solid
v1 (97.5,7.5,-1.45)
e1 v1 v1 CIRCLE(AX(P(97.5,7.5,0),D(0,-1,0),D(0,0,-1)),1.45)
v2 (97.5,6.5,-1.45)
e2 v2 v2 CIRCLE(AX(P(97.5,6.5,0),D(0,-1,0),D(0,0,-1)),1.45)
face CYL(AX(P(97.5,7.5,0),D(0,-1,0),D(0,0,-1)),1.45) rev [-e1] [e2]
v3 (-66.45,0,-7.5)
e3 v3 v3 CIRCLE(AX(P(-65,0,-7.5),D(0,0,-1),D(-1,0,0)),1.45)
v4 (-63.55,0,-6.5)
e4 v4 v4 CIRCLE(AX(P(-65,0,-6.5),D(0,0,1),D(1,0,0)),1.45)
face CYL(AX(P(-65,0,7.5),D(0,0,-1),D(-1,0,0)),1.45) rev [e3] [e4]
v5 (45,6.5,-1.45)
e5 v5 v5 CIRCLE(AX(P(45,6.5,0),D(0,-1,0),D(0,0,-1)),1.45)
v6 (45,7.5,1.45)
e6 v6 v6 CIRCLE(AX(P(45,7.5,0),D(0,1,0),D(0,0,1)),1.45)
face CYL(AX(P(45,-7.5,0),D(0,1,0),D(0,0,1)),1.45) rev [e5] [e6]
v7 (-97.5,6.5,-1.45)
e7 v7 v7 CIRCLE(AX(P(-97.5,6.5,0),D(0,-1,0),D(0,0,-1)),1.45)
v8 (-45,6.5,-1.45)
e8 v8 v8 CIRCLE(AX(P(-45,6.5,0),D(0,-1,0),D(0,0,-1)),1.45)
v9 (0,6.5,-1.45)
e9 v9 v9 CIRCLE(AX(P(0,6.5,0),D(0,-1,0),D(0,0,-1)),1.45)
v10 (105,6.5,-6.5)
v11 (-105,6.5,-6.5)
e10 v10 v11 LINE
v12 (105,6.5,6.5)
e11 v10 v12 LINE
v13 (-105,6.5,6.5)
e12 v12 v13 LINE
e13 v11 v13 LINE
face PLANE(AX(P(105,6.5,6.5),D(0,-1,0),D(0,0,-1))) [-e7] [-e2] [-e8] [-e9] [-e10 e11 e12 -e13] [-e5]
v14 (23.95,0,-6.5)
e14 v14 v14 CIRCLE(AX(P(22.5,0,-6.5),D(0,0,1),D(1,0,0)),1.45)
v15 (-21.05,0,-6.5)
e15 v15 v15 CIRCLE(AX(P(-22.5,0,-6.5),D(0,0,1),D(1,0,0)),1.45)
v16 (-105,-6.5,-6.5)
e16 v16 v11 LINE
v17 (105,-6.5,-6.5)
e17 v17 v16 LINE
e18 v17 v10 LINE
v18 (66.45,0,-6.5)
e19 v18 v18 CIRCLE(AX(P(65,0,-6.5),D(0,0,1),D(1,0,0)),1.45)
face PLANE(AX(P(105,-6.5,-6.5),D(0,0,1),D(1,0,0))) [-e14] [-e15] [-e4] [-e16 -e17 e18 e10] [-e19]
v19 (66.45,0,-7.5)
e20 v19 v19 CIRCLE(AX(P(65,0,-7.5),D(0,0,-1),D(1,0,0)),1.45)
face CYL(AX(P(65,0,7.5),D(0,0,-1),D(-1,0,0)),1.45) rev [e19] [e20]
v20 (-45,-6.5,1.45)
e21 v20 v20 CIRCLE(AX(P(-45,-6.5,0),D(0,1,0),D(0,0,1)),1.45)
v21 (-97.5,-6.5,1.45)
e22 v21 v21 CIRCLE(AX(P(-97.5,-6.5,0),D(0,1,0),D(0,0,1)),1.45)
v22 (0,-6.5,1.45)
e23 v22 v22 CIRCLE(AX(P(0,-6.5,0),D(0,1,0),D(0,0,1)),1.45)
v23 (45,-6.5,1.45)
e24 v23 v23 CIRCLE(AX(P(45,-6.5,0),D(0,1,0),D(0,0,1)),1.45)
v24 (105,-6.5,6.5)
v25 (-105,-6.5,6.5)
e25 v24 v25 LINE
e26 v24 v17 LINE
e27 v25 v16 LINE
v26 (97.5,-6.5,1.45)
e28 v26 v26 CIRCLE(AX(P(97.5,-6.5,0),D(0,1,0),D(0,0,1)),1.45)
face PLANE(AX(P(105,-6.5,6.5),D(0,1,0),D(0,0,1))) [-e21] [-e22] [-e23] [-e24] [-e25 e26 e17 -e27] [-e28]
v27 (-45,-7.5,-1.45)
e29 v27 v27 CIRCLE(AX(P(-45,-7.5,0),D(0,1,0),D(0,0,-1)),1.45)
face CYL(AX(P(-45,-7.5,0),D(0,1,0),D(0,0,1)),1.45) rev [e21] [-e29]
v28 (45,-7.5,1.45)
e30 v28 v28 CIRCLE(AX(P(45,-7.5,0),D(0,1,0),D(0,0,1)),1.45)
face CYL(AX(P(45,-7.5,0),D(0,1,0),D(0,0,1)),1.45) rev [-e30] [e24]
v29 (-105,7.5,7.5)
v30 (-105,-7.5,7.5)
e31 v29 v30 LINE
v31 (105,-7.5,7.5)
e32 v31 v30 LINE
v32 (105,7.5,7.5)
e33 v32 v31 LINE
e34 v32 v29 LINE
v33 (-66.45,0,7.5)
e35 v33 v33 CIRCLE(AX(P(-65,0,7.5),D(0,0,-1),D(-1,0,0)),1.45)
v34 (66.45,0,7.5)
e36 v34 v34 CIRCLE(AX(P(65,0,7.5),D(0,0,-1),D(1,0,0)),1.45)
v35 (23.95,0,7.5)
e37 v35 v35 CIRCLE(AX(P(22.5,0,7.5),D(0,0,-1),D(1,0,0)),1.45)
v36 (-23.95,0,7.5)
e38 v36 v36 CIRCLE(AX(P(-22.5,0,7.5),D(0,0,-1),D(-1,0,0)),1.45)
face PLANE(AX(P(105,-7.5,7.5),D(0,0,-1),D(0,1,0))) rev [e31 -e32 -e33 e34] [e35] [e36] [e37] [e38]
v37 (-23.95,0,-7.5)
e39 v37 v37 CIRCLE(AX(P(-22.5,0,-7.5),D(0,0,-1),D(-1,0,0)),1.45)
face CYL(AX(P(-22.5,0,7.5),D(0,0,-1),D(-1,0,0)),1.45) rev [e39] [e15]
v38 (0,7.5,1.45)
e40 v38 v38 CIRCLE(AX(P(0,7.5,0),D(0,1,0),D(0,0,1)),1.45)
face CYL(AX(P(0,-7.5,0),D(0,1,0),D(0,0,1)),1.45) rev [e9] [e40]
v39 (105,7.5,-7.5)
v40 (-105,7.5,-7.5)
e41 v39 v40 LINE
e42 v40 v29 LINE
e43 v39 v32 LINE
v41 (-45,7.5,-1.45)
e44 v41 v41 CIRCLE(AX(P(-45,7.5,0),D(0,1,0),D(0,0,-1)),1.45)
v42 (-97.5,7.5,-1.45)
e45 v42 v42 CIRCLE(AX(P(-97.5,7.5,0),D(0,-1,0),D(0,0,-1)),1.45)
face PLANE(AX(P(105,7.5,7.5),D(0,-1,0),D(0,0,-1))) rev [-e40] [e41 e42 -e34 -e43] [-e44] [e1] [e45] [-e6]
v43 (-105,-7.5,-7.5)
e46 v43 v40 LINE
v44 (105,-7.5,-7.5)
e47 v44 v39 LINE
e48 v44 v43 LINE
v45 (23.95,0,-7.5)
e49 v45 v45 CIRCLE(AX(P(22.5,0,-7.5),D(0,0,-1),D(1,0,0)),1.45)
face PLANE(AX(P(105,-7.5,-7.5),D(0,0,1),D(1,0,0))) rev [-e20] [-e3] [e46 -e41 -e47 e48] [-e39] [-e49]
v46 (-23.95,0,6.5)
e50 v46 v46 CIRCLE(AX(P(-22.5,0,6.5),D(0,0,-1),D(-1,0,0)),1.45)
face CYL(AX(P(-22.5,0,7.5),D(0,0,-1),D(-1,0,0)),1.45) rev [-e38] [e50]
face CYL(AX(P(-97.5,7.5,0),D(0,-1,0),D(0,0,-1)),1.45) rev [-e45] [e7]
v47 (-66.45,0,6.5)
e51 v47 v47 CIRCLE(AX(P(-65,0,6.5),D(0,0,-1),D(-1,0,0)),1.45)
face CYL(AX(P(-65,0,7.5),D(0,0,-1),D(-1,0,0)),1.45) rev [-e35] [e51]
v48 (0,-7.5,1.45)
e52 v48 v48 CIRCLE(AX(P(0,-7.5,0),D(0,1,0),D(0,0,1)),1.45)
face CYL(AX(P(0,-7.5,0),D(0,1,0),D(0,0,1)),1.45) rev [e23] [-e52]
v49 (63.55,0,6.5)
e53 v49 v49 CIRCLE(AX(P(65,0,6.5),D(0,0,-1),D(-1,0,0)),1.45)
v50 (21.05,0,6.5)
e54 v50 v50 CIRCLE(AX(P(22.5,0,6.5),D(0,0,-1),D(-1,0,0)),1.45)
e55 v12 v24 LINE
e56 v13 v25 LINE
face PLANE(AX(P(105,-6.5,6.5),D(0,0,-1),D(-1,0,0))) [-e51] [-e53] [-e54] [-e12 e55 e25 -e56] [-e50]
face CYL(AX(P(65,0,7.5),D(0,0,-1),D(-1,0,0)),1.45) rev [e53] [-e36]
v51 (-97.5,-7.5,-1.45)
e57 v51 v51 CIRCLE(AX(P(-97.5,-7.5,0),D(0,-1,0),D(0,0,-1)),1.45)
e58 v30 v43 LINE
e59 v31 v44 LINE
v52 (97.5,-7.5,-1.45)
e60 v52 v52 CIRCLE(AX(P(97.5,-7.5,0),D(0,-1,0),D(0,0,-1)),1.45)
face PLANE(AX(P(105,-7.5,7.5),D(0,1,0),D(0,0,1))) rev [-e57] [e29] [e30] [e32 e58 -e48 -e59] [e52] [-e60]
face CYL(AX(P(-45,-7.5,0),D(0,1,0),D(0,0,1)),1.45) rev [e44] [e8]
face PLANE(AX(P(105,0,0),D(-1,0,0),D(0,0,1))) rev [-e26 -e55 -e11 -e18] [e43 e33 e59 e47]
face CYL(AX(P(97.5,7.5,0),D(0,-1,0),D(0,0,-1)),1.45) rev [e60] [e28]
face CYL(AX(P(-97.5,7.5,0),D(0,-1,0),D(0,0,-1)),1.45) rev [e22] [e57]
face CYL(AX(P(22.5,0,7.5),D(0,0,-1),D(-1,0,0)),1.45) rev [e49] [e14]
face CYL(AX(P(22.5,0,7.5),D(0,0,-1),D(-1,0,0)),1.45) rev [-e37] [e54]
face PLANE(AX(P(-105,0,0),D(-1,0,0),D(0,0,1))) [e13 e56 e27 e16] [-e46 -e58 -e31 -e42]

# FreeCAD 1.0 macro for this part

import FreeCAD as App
import Part
import Sketcher
from FreeCAD import Vector

doc = App.newDocument("Part")
params = doc.addObject("Spreadsheet::Sheet", "Params")
for row, (alias, value) in enumerate([
    ("sketch1_width", "15 mm"),
    ("sketch1_width2", "13 mm"),
    ("pad1_length", "210 mm"),
    ("sketch2_diameter", "2.9 mm"),
    ("sketch3_diameter", "2.9 mm"),
    ("sketch4_diameter", "2.9 mm"),
], start=1):
    params.set(f"A{row}", alias)
    params.set(f"B{row}", "=" + value)
    params.setAlias(f"B{row}", alias)

body = doc.addObject("PartDesign::Body", "Body")

# Sketch on YZ plane
sketch1 = doc.addObject("Sketcher::SketchObject", "Sketch")
body.addObject(sketch1)
sketch1.AttachmentSupport = (doc.YZ_Plane, [""])
sketch1.MapMode = "FlatFace"
sketch1.AttachmentOffset = App.Placement(Vector(0, 0, -105), App.Rotation())
sketch1.addGeometry(Part.LineSegment(Vector(8, 8, 0), Vector(-8, 8, 0)), False)
sketch1.addGeometry(Part.LineSegment(Vector(-8, 8, 0), Vector(-8, -8, 0)), False)
sketch1.addGeometry(Part.LineSegment(Vector(-8, -8, 0), Vector(8, -8, 0)), False)
sketch1.addGeometry(Part.LineSegment(Vector(8, -8, 0), Vector(8, 8, 0)), False)
sketch1.addGeometry(Part.LineSegment(Vector(-6, -6, 0), Vector(-6, 6, 0)), False)
sketch1.addGeometry(Part.LineSegment(Vector(-6, 6, 0), Vector(6, 6, 0)), False)
sketch1.addGeometry(Part.LineSegment(Vector(6, 6, 0), Vector(6, -6, 0)), False)
sketch1.addGeometry(Part.LineSegment(Vector(6, -6, 0), Vector(-6, -6, 0)), False)
sketch1.addConstraint(Sketcher.Constraint("Coincident", 0, 2, 1, 1))
sketch1.addConstraint(Sketcher.Constraint("Coincident", 1, 2, 2, 1))
sketch1.addConstraint(Sketcher.Constraint("Coincident", 2, 2, 3, 1))
sketch1.addConstraint(Sketcher.Constraint("Coincident", 3, 2, 0, 1))
sketch1.addConstraint(Sketcher.Constraint("Coincident", 4, 2, 5, 1))
sketch1.addConstraint(Sketcher.Constraint("Coincident", 5, 2, 6, 1))
sketch1.addConstraint(Sketcher.Constraint("Coincident", 6, 2, 7, 1))
sketch1.addConstraint(Sketcher.Constraint("Coincident", 7, 2, 4, 1))
sketch1.addConstraint(Sketcher.Constraint("Horizontal", 0))
sketch1.addConstraint(Sketcher.Constraint("Vertical", 1))
sketch1.addConstraint(Sketcher.Constraint("Horizontal", 2))
sketch1.addConstraint(Sketcher.Constraint("Vertical", 3))
sketch1.addConstraint(Sketcher.Constraint("Vertical", 4))
sketch1.addConstraint(Sketcher.Constraint("Horizontal", 5))
sketch1.addConstraint(Sketcher.Constraint("Vertical", 6))
sketch1.addConstraint(Sketcher.Constraint("Horizontal", 7))
sketch1.addConstraint(Sketcher.Constraint("Symmetric", 0, 2, 2, 2, -1, 1))
sketch1.addConstraint(Sketcher.Constraint("Symmetric", 4, 2, 6, 2, -1, 1))
sketch1.addConstraint(Sketcher.Constraint("Equal", 2, 1))
sketch1.addConstraint(Sketcher.Constraint("Equal", 7, 4))
sketch1.addConstraint(Sketcher.Constraint("DistanceX", 0, 2, 0, 1, 15.0))
sketch1.addConstraint(Sketcher.Constraint("DistanceX", 5, 1, 5, 2, 13.0))
sketch1.setExpression("Constraints[20]", "Params.sketch1_width")
sketch1.setExpression("Constraints[21]", "Params.sketch1_width2")
pad1 = doc.addObject("PartDesign::Pad", "Pad")
body.addObject(pad1)
pad1.Profile = sketch1
pad1.setExpression("Length", "Params.pad1_length")

# Sketch on XY plane
sketch2 = doc.addObject("Sketcher::SketchObject", "Sketch001")
body.addObject(sketch2)
sketch2.AttachmentSupport = (doc.XY_Plane, [""])
sketch2.MapMode = "FlatFace"
sketch2.AttachmentOffset = App.Placement(Vector(0, 0, -7.5), App.Rotation())
sketch2.addGeometry(Part.Circle(Vector(-22.5, 0, 0), Vector(0, 0, 1), 1.4), False)
sketch2.addGeometry(Part.Circle(Vector(-65, 0, 0), Vector(0, 0, 1), 1.4), False)
sketch2.addGeometry(Part.Circle(Vector(65, 0, 0), Vector(0, 0, 1), 1.4), False)
sketch2.addGeometry(Part.Circle(Vector(22.5, 0, 0), Vector(0, 0, 1), 1.4), False)
sketch2.addConstraint(Sketcher.Constraint("Equal", 0, 1))
sketch2.addConstraint(Sketcher.Constraint("Equal", 1, 2))
sketch2.addConstraint(Sketcher.Constraint("Equal", 2, 3))
sketch2.addConstraint(Sketcher.Constraint("Symmetric", 1, 3, 2, 3, -1, 1))
sketch2.addConstraint(Sketcher.Constraint("Symmetric", 0, 3, 3, 3, -1, 1))
sketch2.addConstraint(Sketcher.Constraint("PointOnObject", 0, 3, -1))
sketch2.addConstraint(Sketcher.Constraint("PointOnObject", 1, 3, -1))
sketch2.addConstraint(Sketcher.Constraint("Diameter", 0, 2.9))
sketch2.addConstraint(Sketcher.Constraint("DistanceX", 1, 3, -1, 1, 65.0))
sketch2.addConstraint(Sketcher.Constraint("DistanceX", 0, 3, 3, 3, 45.0))
sketch2.setExpression("Constraints[7]", "Params.sketch2_diameter")
pocket1 = doc.addObject("PartDesign::Pocket", "Pocket")
body.addObject(pocket1)
pocket1.Profile = sketch2
pocket1.Type = "ThroughAll"
pocket1.Reversed = True

# Sketch on XZ plane
sketch3 = doc.addObject("Sketcher::SketchObject", "Sketch002")
body.addObject(sketch3)
sketch3.AttachmentSupport = (doc.XZ_Plane, [""])
sketch3.MapMode = "FlatFace"
sketch3.AttachmentOffset = App.Placement(Vector(0, 0, -7.5), App.Rotation())
sketch3.addGeometry(Part.Circle(Vector(0, 0, 0), Vector(0, 0, 1), 1.4), False)
sketch3.addGeometry(Part.Circle(Vector(45, 0, 0), Vector(0, 0, 1), 1.4), False)
sketch3.addGeometry(Part.Circle(Vector(-45, 0, 0), Vector(0, 0, 1), 1.4), False)
sketch3.addConstraint(Sketcher.Constraint("Coincident", 0, 3, -1, 1))
sketch3.addConstraint(Sketcher.Constraint("Equal", 0, 1))
sketch3.addConstraint(Sketcher.Constraint("Equal", 1, 2))
sketch3.addConstraint(Sketcher.Constraint("Symmetric", 1, 3, 2, 3, -1, 1))
sketch3.addConstraint(Sketcher.Constraint("PointOnObject", 1, 3, -1))
sketch3.addConstraint(Sketcher.Constraint("Diameter", 0, 2.9))
sketch3.addConstraint(Sketcher.Constraint("DistanceX", -1, 1, 1, 3, 45.0))
sketch3.setExpression("Constraints[5]", "Params.sketch3_diameter")
pocket2 = doc.addObject("PartDesign::Pocket", "Pocket001")
body.addObject(pocket2)
pocket2.Profile = sketch3
pocket2.Type = "ThroughAll"
pocket2.Reversed = True

# Sketch on XZ plane
sketch4 = doc.addObject("Sketcher::SketchObject", "Sketch003")
body.addObject(sketch4)
sketch4.AttachmentSupport = (doc.XZ_Plane, [""])
sketch4.MapMode = "FlatFace"
sketch4.AttachmentOffset = App.Placement(Vector(0, 0, 7.5), App.Rotation())
sketch4.addGeometry(Part.Circle(Vector(-97.5, 0, 0), Vector(0, 0, 1), 1.4), False)
sketch4.addGeometry(Part.Circle(Vector(97.5, 0, 0), Vector(0, 0, 1), 1.4), False)
sketch4.addConstraint(Sketcher.Constraint("Equal", 0, 1))
sketch4.addConstraint(Sketcher.Constraint("Symmetric", 0, 3, 1, 3, -1, 1))
sketch4.addConstraint(Sketcher.Constraint("PointOnObject", 0, 3, -1))
sketch4.addConstraint(Sketcher.Constraint("Diameter", 0, 2.9))
sketch4.addConstraint(Sketcher.Constraint("DistanceX", 0, 3, 1, 3, 195.0))
sketch4.setExpression("Constraints[3]", "Params.sketch4_diameter")
pocket3 = doc.addObject("PartDesign::Pocket", "Pocket002")
body.addObject(pocket3)
pocket3.Profile = sketch4
pocket3.Type = "ThroughAll"

doc.recompute()
